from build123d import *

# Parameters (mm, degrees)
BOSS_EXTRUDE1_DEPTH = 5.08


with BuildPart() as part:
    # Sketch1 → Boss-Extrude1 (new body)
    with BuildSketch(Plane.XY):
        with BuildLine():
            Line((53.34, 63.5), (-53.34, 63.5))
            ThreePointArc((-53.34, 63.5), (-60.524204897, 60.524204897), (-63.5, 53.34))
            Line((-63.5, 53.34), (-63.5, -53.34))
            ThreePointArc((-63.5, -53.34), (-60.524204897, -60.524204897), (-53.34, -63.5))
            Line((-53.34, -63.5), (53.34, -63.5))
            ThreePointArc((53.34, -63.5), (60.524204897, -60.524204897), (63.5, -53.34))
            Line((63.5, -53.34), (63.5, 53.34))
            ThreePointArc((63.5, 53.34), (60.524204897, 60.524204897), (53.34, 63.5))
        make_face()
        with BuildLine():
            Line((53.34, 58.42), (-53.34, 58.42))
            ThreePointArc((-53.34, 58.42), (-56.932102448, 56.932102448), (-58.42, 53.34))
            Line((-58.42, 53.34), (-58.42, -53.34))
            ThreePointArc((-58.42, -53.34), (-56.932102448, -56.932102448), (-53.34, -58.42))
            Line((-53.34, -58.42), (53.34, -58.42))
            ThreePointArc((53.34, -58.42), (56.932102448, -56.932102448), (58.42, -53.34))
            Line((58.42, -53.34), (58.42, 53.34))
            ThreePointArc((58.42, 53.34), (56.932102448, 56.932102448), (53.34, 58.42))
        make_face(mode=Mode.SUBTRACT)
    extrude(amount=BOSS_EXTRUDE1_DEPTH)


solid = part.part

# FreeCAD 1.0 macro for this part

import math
import FreeCAD as App
import Part
import Sketcher
Q = App.Units.Quantity

doc = App.newDocument("Part")
body = doc.addObject("PartDesign::Body", "Body")

# Sketch on XY plane
sketch1 = body.newObject("Sketcher::SketchObject", "Sketch")
sketch1.AttachmentSupport = (doc.getObject("XY_Plane"), [""])
sketch1.MapMode = "FlatFace"
sketch1.addGeometry([
    Part.LineSegment(App.Vector(53, 64, 0), App.Vector(-53, 64, 0)),  # 0
    Part.ArcOfCircle(Part.Circle(App.Vector(-53, 53, 0), App.Vector(0, 0, 1), 10), math.radians(90), math.radians(180)),  # 1
    Part.LineSegment(App.Vector(-64, 53, 0), App.Vector(-64, -53, 0)),  # 2
    Part.ArcOfCircle(Part.Circle(App.Vector(-53, -53, 0), App.Vector(0, 0, 1), 10), math.radians(180), math.radians(270)),  # 3
    Part.LineSegment(App.Vector(-53, -64, 0), App.Vector(53, -64, 0)),  # 4
    Part.ArcOfCircle(Part.Circle(App.Vector(53, -53, 0), App.Vector(0, 0, 1), 10), math.radians(-90), math.radians(0)),  # 5
    Part.LineSegment(App.Vector(64, -53, 0), App.Vector(64, 53, 0)),  # 6
    Part.ArcOfCircle(Part.Circle(App.Vector(53, 53, 0), App.Vector(0, 0, 1), 10), math.radians(0), math.radians(90)),  # 7
    Part.LineSegment(App.Vector(-53, 58, 0), App.Vector(53, 58, 0)),  # 8
    Part.ArcOfCircle(Part.Circle(App.Vector(53, 53, 0), App.Vector(0, 0, 1), 5), math.radians(0), math.radians(90)),  # 9
    Part.LineSegment(App.Vector(58, 53, 0), App.Vector(58, -53, 0)),  # 10
    Part.ArcOfCircle(Part.Circle(App.Vector(53, -53, 0), App.Vector(0, 0, 1), 5), math.radians(-90), math.radians(0)),  # 11
    Part.LineSegment(App.Vector(53, -58, 0), App.Vector(-53, -58, 0)),  # 12
    Part.ArcOfCircle(Part.Circle(App.Vector(-53, -53, 0), App.Vector(0, 0, 1), 5), math.radians(-180), math.radians(-90)),  # 13
    Part.LineSegment(App.Vector(-58, -53, 0), App.Vector(-58, 53, 0)),  # 14
    Part.ArcOfCircle(Part.Circle(App.Vector(-53, 53, 0), App.Vector(0, 0, 1), 5), math.radians(90), math.radians(180)),  # 15
], False)
sketch1.addConstraint([
    Sketcher.Constraint("Tangent", 0, 2, 1, 1),
    Sketcher.Constraint("Tangent", 1, 2, 2, 1),
    Sketcher.Constraint("Tangent", 2, 2, 3, 1),
    Sketcher.Constraint("Tangent", 3, 2, 4, 1),
    Sketcher.Constraint("Tangent", 4, 2, 5, 1),
    Sketcher.Constraint("Tangent", 5, 2, 6, 1),
    Sketcher.Constraint("Tangent", 6, 2, 7, 1),
    Sketcher.Constraint("Tangent", 7, 2, 0, 1),
    Sketcher.Constraint("Tangent", 8, 2, 9, 2),
    Sketcher.Constraint("Tangent", 9, 1, 10, 1),
    Sketcher.Constraint("Tangent", 10, 2, 11, 2),
    Sketcher.Constraint("Tangent", 11, 1, 12, 1),
    Sketcher.Constraint("Tangent", 12, 2, 13, 2),
    Sketcher.Constraint("Tangent", 13, 1, 14, 1),
    Sketcher.Constraint("Tangent", 14, 2, 15, 2),
    Sketcher.Constraint("Tangent", 15, 1, 8, 1),
    Sketcher.Constraint("Horizontal", 0),
    Sketcher.Constraint("Vertical", 2),
    Sketcher.Constraint("Horizontal", 4),
    Sketcher.Constraint("Vertical", 6),
    Sketcher.Constraint("Horizontal", 8),
    Sketcher.Constraint("Vertical", 10),
    Sketcher.Constraint("Horizontal", 12),
    Sketcher.Constraint("Vertical", 14),
    Sketcher.Constraint("Coincident", 9, 3, 7, 3),
    Sketcher.Constraint("Coincident", 11, 3, 5, 3),
    Sketcher.Constraint("Coincident", 13, 3, 3, 3),
    Sketcher.Constraint("Equal", 1, 3),
    Sketcher.Constraint("Equal", 3, 5),
    Sketcher.Constraint("Equal", 5, 7),
    Sketcher.Constraint("Equal", 13, 15),
    Sketcher.Constraint("Symmetric", 1, 3, 5, 3, -1, 1),
    Sketcher.Constraint("Equal", 12, 2),
    Sketcher.Constraint("Radius", 1, Q("0.4 in")),
    Sketcher.Constraint("Radius", 9, Q("0.2 in")),
    Sketcher.Constraint("DistanceX", 0, 2, 0, 1, Q("4.2 in")),
])
pad1 = body.newObject("PartDesign::Pad", "Pad")
pad1.Profile = sketch1
pad1.Length = Q("0.2 in")

doc.recompute()
